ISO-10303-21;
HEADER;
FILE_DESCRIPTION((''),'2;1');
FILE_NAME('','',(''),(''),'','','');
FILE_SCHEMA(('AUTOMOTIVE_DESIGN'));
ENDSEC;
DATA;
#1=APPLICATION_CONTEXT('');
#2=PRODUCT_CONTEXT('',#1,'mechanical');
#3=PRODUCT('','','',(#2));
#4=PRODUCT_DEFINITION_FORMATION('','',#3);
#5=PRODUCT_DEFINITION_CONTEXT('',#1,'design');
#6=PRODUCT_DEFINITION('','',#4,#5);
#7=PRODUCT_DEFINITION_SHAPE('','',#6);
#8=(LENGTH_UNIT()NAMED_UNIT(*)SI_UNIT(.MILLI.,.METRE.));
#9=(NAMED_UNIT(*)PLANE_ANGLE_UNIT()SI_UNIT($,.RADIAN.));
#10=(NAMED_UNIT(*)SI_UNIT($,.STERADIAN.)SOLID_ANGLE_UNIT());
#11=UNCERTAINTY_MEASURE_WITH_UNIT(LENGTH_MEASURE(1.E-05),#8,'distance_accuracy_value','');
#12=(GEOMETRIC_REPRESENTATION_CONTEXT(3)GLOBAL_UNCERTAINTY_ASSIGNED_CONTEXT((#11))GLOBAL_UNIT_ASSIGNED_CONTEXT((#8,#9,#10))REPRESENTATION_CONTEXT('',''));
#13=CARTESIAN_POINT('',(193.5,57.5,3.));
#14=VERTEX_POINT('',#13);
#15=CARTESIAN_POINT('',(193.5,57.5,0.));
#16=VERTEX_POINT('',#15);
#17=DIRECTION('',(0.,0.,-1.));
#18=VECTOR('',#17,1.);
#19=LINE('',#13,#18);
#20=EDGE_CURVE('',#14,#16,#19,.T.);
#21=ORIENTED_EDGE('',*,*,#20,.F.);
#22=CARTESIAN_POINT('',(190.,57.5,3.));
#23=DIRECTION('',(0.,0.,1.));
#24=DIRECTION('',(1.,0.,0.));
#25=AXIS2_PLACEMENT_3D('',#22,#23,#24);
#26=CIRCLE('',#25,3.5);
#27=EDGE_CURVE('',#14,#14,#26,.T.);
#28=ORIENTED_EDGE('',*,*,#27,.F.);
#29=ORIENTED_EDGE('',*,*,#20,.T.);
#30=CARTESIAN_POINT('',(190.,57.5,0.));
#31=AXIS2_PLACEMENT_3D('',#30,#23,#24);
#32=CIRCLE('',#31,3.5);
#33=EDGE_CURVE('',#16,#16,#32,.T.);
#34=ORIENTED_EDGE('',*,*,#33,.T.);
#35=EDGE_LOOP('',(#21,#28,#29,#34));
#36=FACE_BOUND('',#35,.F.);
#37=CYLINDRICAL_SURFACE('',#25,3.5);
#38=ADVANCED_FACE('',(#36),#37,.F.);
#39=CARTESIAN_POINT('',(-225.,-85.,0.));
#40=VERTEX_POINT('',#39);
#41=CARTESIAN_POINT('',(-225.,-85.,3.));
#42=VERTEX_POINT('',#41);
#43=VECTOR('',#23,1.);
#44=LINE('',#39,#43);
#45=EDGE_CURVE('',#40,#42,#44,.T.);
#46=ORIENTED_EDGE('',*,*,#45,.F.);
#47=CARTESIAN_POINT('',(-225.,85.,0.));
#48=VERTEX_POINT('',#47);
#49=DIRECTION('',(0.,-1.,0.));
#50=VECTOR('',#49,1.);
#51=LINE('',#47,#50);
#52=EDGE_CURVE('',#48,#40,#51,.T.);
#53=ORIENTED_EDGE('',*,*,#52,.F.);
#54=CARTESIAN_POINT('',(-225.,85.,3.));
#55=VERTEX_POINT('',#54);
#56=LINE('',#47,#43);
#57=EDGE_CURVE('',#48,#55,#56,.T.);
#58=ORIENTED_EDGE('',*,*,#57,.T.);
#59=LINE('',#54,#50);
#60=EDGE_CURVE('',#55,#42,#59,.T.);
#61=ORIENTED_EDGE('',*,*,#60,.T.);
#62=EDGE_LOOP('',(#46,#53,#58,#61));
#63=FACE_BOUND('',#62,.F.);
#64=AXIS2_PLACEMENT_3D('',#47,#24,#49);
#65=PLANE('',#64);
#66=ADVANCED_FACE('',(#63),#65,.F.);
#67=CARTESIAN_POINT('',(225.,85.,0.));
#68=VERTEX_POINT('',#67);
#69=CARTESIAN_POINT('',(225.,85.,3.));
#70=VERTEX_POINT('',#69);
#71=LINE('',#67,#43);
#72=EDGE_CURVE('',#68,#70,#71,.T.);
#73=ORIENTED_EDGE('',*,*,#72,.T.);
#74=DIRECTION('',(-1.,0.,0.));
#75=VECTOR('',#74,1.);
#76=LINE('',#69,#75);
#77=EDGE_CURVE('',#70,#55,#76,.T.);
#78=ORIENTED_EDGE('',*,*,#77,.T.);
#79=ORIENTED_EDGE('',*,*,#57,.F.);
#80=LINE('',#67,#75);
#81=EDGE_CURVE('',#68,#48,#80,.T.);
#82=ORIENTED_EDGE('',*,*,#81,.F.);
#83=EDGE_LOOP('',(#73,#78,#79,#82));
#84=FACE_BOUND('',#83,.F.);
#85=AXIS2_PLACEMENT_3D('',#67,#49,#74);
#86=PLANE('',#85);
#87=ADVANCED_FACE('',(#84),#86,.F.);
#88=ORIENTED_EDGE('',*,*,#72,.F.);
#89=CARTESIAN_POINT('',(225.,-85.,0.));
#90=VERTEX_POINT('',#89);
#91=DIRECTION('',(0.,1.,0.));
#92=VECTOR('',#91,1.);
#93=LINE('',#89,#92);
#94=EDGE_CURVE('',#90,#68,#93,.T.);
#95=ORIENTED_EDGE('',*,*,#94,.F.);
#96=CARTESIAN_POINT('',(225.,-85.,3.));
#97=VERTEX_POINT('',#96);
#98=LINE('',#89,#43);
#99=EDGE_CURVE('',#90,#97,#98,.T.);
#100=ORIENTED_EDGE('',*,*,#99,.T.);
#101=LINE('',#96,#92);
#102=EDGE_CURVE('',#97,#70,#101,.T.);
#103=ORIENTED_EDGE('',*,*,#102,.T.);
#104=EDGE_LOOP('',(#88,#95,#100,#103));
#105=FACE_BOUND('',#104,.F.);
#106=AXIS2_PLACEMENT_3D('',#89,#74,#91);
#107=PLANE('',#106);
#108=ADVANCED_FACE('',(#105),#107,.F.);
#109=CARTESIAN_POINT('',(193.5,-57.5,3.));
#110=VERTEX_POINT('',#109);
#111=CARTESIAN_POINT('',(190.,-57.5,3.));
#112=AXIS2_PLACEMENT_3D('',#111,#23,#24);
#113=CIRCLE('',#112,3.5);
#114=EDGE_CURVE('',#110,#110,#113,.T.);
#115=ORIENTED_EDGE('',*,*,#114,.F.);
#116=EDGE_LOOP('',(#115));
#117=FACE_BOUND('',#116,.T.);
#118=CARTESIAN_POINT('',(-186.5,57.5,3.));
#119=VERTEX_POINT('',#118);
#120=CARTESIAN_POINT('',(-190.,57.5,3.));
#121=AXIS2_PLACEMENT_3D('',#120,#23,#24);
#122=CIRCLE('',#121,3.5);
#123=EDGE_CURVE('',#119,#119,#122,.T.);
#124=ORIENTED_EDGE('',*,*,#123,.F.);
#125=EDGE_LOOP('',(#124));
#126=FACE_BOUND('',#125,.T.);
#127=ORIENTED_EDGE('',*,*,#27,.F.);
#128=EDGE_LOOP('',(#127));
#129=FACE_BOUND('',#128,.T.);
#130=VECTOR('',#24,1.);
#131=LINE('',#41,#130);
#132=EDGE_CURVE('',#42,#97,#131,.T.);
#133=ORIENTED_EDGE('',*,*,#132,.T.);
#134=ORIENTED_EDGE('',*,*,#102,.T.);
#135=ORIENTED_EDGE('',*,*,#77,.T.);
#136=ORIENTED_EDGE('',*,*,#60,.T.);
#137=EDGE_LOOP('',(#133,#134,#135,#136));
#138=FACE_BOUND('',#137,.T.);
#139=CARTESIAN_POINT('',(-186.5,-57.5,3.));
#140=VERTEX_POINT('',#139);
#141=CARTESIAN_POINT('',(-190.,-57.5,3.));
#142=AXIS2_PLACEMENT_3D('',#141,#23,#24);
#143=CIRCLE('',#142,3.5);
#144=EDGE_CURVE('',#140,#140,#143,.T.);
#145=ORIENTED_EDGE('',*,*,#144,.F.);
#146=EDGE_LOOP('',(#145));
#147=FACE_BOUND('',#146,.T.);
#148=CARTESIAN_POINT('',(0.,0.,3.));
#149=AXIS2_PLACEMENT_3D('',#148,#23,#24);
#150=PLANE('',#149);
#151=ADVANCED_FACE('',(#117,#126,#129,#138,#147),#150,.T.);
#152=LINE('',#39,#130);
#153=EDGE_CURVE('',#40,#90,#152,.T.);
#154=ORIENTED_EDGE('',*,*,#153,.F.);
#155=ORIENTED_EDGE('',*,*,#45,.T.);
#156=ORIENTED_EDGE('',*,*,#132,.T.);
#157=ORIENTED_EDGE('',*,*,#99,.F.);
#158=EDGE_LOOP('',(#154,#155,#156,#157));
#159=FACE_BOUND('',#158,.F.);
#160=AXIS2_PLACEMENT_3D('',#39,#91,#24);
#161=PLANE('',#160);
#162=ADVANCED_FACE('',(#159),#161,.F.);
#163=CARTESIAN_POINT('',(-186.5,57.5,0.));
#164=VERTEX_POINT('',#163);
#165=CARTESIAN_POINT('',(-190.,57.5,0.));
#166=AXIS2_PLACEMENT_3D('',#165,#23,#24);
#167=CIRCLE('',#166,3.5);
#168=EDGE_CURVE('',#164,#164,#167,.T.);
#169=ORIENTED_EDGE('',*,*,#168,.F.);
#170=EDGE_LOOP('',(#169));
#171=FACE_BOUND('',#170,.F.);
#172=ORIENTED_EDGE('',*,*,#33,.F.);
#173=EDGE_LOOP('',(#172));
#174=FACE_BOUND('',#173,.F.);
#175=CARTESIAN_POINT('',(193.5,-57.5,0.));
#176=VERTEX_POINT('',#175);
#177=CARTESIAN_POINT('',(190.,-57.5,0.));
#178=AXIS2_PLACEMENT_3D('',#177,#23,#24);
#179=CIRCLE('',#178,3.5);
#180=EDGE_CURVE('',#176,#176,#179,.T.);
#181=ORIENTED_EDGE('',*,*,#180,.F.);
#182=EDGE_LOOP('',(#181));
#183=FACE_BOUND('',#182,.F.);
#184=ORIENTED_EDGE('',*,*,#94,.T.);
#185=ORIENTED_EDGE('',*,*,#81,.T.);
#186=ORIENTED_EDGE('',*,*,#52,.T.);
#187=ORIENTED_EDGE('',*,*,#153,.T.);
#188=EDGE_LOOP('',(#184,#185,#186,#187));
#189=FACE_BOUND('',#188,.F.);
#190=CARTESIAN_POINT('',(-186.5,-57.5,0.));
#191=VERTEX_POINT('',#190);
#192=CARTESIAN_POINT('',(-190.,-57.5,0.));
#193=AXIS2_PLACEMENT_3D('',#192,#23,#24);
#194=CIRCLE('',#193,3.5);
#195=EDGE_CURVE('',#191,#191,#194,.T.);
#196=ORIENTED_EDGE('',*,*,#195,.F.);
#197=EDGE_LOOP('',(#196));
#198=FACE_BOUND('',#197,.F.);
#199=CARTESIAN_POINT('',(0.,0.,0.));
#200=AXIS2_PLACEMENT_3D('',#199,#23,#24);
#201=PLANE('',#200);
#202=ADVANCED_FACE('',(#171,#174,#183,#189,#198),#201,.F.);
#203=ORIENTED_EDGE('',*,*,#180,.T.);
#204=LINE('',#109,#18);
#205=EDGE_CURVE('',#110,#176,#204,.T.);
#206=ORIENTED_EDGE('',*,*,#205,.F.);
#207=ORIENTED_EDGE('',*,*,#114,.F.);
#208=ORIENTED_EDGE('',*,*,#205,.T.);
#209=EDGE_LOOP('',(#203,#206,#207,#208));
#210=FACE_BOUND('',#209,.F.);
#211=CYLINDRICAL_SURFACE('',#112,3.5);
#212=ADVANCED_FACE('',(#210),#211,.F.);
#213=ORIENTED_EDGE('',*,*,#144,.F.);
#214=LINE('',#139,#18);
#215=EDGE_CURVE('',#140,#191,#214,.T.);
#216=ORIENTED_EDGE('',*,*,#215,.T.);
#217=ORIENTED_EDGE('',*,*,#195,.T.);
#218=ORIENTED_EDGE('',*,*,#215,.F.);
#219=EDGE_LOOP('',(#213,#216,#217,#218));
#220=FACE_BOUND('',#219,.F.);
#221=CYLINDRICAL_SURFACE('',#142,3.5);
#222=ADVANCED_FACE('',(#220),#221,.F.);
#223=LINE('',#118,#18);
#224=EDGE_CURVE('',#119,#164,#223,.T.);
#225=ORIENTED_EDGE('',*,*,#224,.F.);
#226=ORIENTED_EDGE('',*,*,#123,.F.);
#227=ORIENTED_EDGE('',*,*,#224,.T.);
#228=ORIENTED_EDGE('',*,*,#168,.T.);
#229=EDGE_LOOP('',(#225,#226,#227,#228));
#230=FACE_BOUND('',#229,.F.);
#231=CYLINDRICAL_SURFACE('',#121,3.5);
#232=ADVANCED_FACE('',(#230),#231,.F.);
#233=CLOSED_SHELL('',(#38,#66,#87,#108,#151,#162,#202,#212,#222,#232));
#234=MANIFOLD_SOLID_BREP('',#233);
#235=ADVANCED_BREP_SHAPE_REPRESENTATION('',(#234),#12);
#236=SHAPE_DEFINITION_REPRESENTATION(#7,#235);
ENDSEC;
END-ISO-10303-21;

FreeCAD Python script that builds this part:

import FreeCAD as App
import Part
import Sketcher

doc = App.newDocument("Part")
body = doc.addObject("PartDesign::Body", "Body")

# Sketch on XY plane
sketch1 = body.newObject("Sketcher::SketchObject", "Sketch")
sketch1.AttachmentSupport = (doc.getObject("XY_Plane"), [""])
sketch1.MapMode = "FlatFace"
sketch1.addGeometry(Part.LineSegment(App.Vector(-225, 85, 0), App.Vector(-225, -85, 0)), False)
sketch1.addGeometry(Part.LineSegment(App.Vector(-225, -85, 0), App.Vector(225, -85, 0)), False)
sketch1.addGeometry(Part.LineSegment(App.Vector(225, -85, 0), App.Vector(225, 85, 0)), False)
sketch1.addGeometry(Part.LineSegment(App.Vector(225, 85, 0), App.Vector(-225, 85, 0)), False)
sketch1.addConstraint(Sketcher.Constraint("Coincident", 0, 2, 1, 1))
sketch1.addConstraint(Sketcher.Constraint("Coincident", 1, 2, 2, 1))
sketch1.addConstraint(Sketcher.Constraint("Coincident", 2, 2, 3, 1))
sketch1.addConstraint(Sketcher.Constraint("Coincident", 3, 2, 0, 1))
sketch1.addConstraint(Sketcher.Constraint("Vertical", 0))
sketch1.addConstraint(Sketcher.Constraint("Horizontal", 1))
sketch1.addConstraint(Sketcher.Constraint("Vertical", 2))
sketch1.addConstraint(Sketcher.Constraint("Horizontal", 3))
sketch1.addConstraint(Sketcher.Constraint("Symmetric", 0, 2, 2, 2, -1, 1))
sketch1.addConstraint(Sketcher.Constraint("DistanceX", 0, 2, -1, 1, 225.0))
sketch1.addConstraint(Sketcher.Constraint("DistanceY", 0, 2, 0, 1, 170.0))
pad1 = body.newObject("PartDesign::Pad", "Pad")
pad1.Profile = sketch1
pad1.Length = 3

# Sketch on XY plane
sketch2 = body.newObject("Sketcher::SketchObject", "Sketch001")
sketch2.AttachmentSupport = (doc.getObject("XY_Plane"), [""])
sketch2.MapMode = "FlatFace"
sketch2.AttachmentOffset = App.Placement(App.Vector(0, 0, 3), App.Rotation())
sketch2.addGeometry(Part.Circle(App.Vector(-190, 57.5, 0), App.Vector(0, 0, 1), 3.5), False)
sketch2.addGeometry(Part.Circle(App.Vector(-190, -57.5, 0), App.Vector(0, 0, 1), 3.5), False)
sketch2.addGeometry(Part.Circle(App.Vector(190, -57.5, 0), App.Vector(0, 0, 1), 3.5), False)
sketch2.addGeometry(Part.Circle(App.Vector(190, 57.5, 0), App.Vector(0, 0, 1), 3.5), False)
sketch2.addConstraint(Sketcher.Constraint("Equal", 0, 1))
sketch2.addConstraint(Sketcher.Constraint("Equal", 1, 2))
sketch2.addConstraint(Sketcher.Constraint("Equal", 2, 3))
sketch2.addConstraint(Sketcher.Constraint("Symmetric", 0, 3, 2, 3, -1, 1))
sketch2.addConstraint(Sketcher.Constraint("Symmetric", 1, 3, 3, 3, -1, 1))
sketch2.addConstraint(Sketcher.Constraint("Symmetric", 1, 3, 2, 3, -2))
sketch2.addConstraint(Sketcher.Constraint("Diameter", 0, 7.0))
sketch2.addConstraint(Sketcher.Constraint("DistanceX", 0, 3, -1, 1, 190.0))
sketch2.addConstraint(Sketcher.Constraint("DistanceY", 1, 3, 0, 3, 115.0))
pocket1 = body.newObject("PartDesign::Pocket", "Pocket")
pocket1.Profile = sketch2
pocket1.Type = "ThroughAll"

doc.recompute()
